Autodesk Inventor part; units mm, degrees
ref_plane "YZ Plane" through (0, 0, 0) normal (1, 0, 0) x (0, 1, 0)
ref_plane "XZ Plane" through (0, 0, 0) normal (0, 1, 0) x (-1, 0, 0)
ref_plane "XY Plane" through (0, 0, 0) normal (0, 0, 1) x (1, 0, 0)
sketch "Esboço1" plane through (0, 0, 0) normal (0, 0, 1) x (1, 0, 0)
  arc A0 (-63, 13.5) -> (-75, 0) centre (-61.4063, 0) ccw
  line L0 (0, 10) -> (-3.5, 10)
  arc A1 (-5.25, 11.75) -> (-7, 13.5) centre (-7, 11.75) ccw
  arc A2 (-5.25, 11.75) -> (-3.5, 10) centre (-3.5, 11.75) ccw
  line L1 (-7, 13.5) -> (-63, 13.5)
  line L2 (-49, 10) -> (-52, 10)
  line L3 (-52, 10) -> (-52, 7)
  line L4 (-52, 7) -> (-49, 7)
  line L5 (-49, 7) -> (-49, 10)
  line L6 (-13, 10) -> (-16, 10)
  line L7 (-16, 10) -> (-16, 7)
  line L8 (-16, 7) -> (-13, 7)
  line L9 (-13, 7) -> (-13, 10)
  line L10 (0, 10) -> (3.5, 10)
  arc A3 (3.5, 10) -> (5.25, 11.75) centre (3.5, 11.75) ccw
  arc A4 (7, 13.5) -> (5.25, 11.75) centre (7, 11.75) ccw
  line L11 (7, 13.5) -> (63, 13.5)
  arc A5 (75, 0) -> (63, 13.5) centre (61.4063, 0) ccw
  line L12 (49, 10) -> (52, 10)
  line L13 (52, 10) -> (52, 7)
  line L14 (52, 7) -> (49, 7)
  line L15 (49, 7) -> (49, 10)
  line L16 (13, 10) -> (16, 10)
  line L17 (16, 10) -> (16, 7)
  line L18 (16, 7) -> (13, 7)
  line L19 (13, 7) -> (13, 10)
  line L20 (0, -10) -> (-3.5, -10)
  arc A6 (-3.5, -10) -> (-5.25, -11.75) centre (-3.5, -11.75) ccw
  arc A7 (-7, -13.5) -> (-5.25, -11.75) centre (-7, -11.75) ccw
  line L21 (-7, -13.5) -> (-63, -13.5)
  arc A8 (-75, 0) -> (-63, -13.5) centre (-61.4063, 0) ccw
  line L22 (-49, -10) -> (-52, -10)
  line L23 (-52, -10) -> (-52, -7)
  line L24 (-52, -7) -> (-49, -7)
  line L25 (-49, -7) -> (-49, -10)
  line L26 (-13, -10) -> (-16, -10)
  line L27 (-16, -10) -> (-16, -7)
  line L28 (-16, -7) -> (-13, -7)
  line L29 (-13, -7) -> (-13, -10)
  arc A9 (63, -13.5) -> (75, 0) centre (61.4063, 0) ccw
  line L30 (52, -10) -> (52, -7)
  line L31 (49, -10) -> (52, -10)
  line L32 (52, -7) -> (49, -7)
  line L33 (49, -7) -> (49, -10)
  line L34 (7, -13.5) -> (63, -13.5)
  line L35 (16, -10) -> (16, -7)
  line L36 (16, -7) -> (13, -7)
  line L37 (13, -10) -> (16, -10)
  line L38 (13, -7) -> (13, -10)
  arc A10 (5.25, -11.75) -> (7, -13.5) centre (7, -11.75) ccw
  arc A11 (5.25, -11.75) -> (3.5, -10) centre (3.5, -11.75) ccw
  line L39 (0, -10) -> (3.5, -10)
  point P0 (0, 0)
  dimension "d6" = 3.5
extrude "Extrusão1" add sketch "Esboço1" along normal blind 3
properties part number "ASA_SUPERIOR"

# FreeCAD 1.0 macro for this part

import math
import FreeCAD as App
import Part
import Sketcher
from FreeCAD import Vector


def add_polygon(sketch, points):
    """Adds a closed chain of lines whose ends are joined by coincident constraints."""
    first, n = sketch.GeometryCount, len(points)
    for a, b in zip(points, points[1:] + points[:1]):
        sketch.addGeometry(Part.LineSegment(App.Vector(*a, 0), App.Vector(*b, 0)), False)
    for i in range(n):
        sketch.addConstraint(Sketcher.Constraint("Coincident", first + i, 2, first + (i + 1) % n, 1))

doc = App.newDocument("Part")
body = doc.addObject("PartDesign::Body", "Body")

# Sketch on XY plane
sketch1 = body.newObject("Sketcher::SketchObject", "Sketch")
sketch1.AttachmentSupport = (doc.getObject("XY_Plane"), [""])
sketch1.MapMode = "FlatFace"
sketch1.addGeometry(Part.LineSegment(Vector(-7, 13.5, 0), Vector(-63, 13.5, 0)), False)  # 0
sketch1.addGeometry(Part.ArcOfCircle(Part.Circle(Vector(-61.4, 0, 0), Vector(0, 0, 1), 13.6), math.radians(97), math.radians(180)), False)  # 1
sketch1.addGeometry(Part.ArcOfCircle(Part.Circle(Vector(-61.4, 0, 0), Vector(0, 0, 1), 13.6), math.radians(180), math.radians(263)), False)  # 2
sketch1.addGeometry(Part.LineSegment(Vector(-63, -13.5, 0), Vector(-7, -13.5, 0)), False)  # 3
sketch1.addGeometry(Part.ArcOfCircle(Part.Circle(Vector(-7, -11.8, 0), Vector(0, 0, 1), 1.8), math.radians(-90), math.radians(0)), False)  # 4
sketch1.addGeometry(Part.ArcOfCircle(Part.Circle(Vector(-3.5, -11.8, 0), Vector(0, 0, 1), 1.8), math.radians(90), math.radians(180)), False)  # 5
sketch1.addGeometry(Part.LineSegment(Vector(-3.5, -10, 0), Vector(3.5, -10, 0)), False)  # 6
sketch1.addGeometry(Part.ArcOfCircle(Part.Circle(Vector(3.5, -11.8, 0), Vector(0, 0, 1), 1.8), math.radians(0), math.radians(90)), False)  # 7
sketch1.addGeometry(Part.ArcOfCircle(Part.Circle(Vector(7, -11.8, 0), Vector(0, 0, 1), 1.8), math.radians(180), math.radians(270)), False)  # 8
sketch1.addGeometry(Part.LineSegment(Vector(7, -13.5, 0), Vector(63, -13.5, 0)), False)  # 9
sketch1.addGeometry(Part.ArcOfCircle(Part.Circle(Vector(61.4, 0, 0), Vector(0, 0, 1), 13.6), math.radians(-83), math.radians(0)), False)  # 10
sketch1.addGeometry(Part.ArcOfCircle(Part.Circle(Vector(61.4, 0, 0), Vector(0, 0, 1), 13.6), math.radians(0), math.radians(83)), False)  # 11
sketch1.addGeometry(Part.LineSegment(Vector(63, 13.5, 0), Vector(7, 13.5, 0)), False)  # 12
sketch1.addGeometry(Part.ArcOfCircle(Part.Circle(Vector(7, 11.8, 0), Vector(0, 0, 1), 1.8), math.radians(90), math.radians(180)), False)  # 13
sketch1.addGeometry(Part.ArcOfCircle(Part.Circle(Vector(3.5, 11.8, 0), Vector(0, 0, 1), 1.8), math.radians(-90), math.radians(0)), False)  # 14
sketch1.addGeometry(Part.LineSegment(Vector(3.5, 10, 0), Vector(-3.5, 10, 0)), False)  # 15
sketch1.addGeometry(Part.ArcOfCircle(Part.Circle(Vector(-3.5, 11.8, 0), Vector(0, 0, 1), 1.8), math.radians(180), math.radians(270)), False)  # 16
sketch1.addGeometry(Part.ArcOfCircle(Part.Circle(Vector(-7, 11.8, 0), Vector(0, 0, 1), 1.8), math.radians(0), math.radians(90)), False)  # 17
add_polygon(sketch1, [(-49, -7), (-49, -10), (-52, -10), (-52, -7)])  # lines 18-21
add_polygon(sketch1, [(-13, -7), (-13, -10), (-16, -10), (-16, -7)])  # lines 22-25
add_polygon(sketch1, [(16, -7), (16, -10), (13, -10), (13, -7)])  # lines 26-29
add_polygon(sketch1, [(52, -7), (52, -10), (49, -10), (49, -7)])  # lines 30-33
add_polygon(sketch1, [(-52, 10), (-49, 10), (-49, 7), (-52, 7)])  # lines 34-37
add_polygon(sketch1, [(-16, 10), (-13, 10), (-13, 7), (-16, 7)])  # lines 38-41
add_polygon(sketch1, [(13, 7), (13, 10), (16, 10), (16, 7)])  # lines 42-45
add_polygon(sketch1, [(49, 7), (49, 10), (52, 10), (52, 7)])  # lines 46-49
sketch1.addConstraint([
    Sketcher.Constraint("Coincident", 0, 2, 1, 1),
    Sketcher.Constraint("Tangent", 1, 2, 2, 1),
    Sketcher.Constraint("Coincident", 2, 2, 3, 1),
    Sketcher.Constraint("Tangent", 3, 2, 4, 1),
    Sketcher.Constraint("Tangent", 4, 2, 5, 2),
    Sketcher.Constraint("Tangent", 5, 1, 6, 1),
    Sketcher.Constraint("Tangent", 6, 2, 7, 2),
    Sketcher.Constraint("Tangent", 7, 1, 8, 1),
    Sketcher.Constraint("Tangent", 8, 2, 9, 1),
    Sketcher.Constraint("Coincident", 9, 2, 10, 1),
    Sketcher.Constraint("Tangent", 10, 2, 11, 1),
    Sketcher.Constraint("Coincident", 11, 2, 12, 1),
    Sketcher.Constraint("Tangent", 12, 2, 13, 1),
    Sketcher.Constraint("Tangent", 13, 2, 14, 2),
    Sketcher.Constraint("Tangent", 14, 1, 15, 1),
    Sketcher.Constraint("Tangent", 15, 2, 16, 2),
    Sketcher.Constraint("Tangent", 16, 1, 17, 1),
    Sketcher.Constraint("Tangent", 17, 2, 0, 1),
    Sketcher.Constraint("Horizontal", 0),
    Sketcher.Constraint("Horizontal", 3),
    Sketcher.Constraint("Horizontal", 6),
    Sketcher.Constraint("Horizontal", 9),
    Sketcher.Constraint("Horizontal", 12),
    Sketcher.Constraint("Horizontal", 15),
    Sketcher.Constraint("Vertical", 18),
    Sketcher.Constraint("Horizontal", 19),
    Sketcher.Constraint("Vertical", 20),
    Sketcher.Constraint("Horizontal", 21),
    Sketcher.Constraint("Vertical", 22),
    Sketcher.Constraint("Horizontal", 23),
    Sketcher.Constraint("Vertical", 24),
    Sketcher.Constraint("Horizontal", 25),
    Sketcher.Constraint("Vertical", 26),
    Sketcher.Constraint("Horizontal", 27),
    Sketcher.Constraint("Vertical", 28),
    Sketcher.Constraint("Horizontal", 29),
    Sketcher.Constraint("Vertical", 30),
    Sketcher.Constraint("Horizontal", 31),
    Sketcher.Constraint("Vertical", 32),
    Sketcher.Constraint("Horizontal", 33),
    Sketcher.Constraint("Horizontal", 34),
    Sketcher.Constraint("Vertical", 35),
    Sketcher.Constraint("Horizontal", 36),
    Sketcher.Constraint("Vertical", 37),
    Sketcher.Constraint("Horizontal", 38),
    Sketcher.Constraint("Vertical", 39),
    Sketcher.Constraint("Horizontal", 40),
    Sketcher.Constraint("Vertical", 41),
    Sketcher.Constraint("Vertical", 42),
    Sketcher.Constraint("Horizontal", 43),
    Sketcher.Constraint("Vertical", 44),
    Sketcher.Constraint("Horizontal", 45),
    Sketcher.Constraint("Vertical", 46),
    Sketcher.Constraint("Horizontal", 47),
    Sketcher.Constraint("Vertical", 48),
    Sketcher.Constraint("Horizontal", 49),
    Sketcher.Constraint("Equal", 1, 2),
    Sketcher.Constraint("Equal", 4, 5),
    Sketcher.Constraint("Equal", 5, 7),
    Sketcher.Constraint("Equal", 7, 8),
    Sketcher.Constraint("Equal", 2, 10),
    Sketcher.Constraint("Equal", 10, 11),
    Sketcher.Constraint("Equal", 8, 13),
    Sketcher.Constraint("Equal", 13, 14),
    Sketcher.Constraint("Equal", 14, 16),
    Sketcher.Constraint("Equal", 16, 17),
    Sketcher.Constraint("Symmetric", 1, 3, 10, 3, -1, 1),
    Sketcher.Constraint("Symmetric", 4, 3, 13, 3, -1, 1),
    Sketcher.Constraint("Symmetric", 7, 3, 16, 3, -1, 1),
    Sketcher.Constraint("Symmetric", 31, 2, 34, 2, -1, 1),
    Sketcher.Constraint("Symmetric", 33, 2, 36, 2, -1, 1),
    Sketcher.Constraint("Symmetric", 27, 2, 38, 2, -1, 1),
    Sketcher.Constraint("Symmetric", 29, 2, 40, 2, -1, 1),
    Sketcher.Constraint("Symmetric", 22, 2, 42, 2, -1, 1),
    Sketcher.Constraint("Symmetric", 24, 2, 44, 2, -1, 1),
    Sketcher.Constraint("Symmetric", 18, 2, 46, 2, -1, 1),
    Sketcher.Constraint("Symmetric", 20, 2, 48, 2, -1, 1),
    Sketcher.Constraint("Symmetric", 4, 3, 8, 3, -2),
    Sketcher.Constraint("Symmetric", 0, 2, 11, 2, -2),
    Sketcher.Constraint("Symmetric", 23, 2, 26, 2, -2),
    Sketcher.Constraint("Symmetric", 25, 2, 28, 2, -2),
    Sketcher.Constraint("Symmetric", 19, 2, 30, 2, -2),
    Sketcher.Constraint("Symmetric", 21, 2, 32, 2, -2),
    Sketcher.Constraint("PointOnObject", 1, 2, -1),
    Sketcher.Constraint("PointOnObject", 10, 2, -1),
    Sketcher.Constraint("Horizontal", 4, 3, 5, 3),
    Sketcher.Constraint("Horizontal", 6, 2, 18, 2),
    Sketcher.Constraint("Horizontal", 19, 2, 22, 2),
    Sketcher.Constraint("Horizontal", 21, 2, 24, 2),
    Sketcher.Constraint("Equal", 21, 23),
    Sketcher.Constraint("Equal", 49, 18),
    Sketcher.Constraint("Radius", 4, 1.75),
    Sketcher.Constraint("DistanceX", 5, 3, -1, 1, 3.5),
    Sketcher.Constraint("DistanceX", 0, 2, 0, 1, 56.0),
    Sketcher.Constraint("DistanceX", 19, 2, 19, 1, 3.0),
    Sketcher.Constraint("DistanceX", 1, 2, -1, 1, 75.0),
    Sketcher.Constraint("DistanceY", 5, 1, -1, 1, 10.0),
    Sketcher.Constraint("DistanceX", 18, 2, -1, 1, 49.0),
    Sketcher.Constraint("DistanceX", 22, 2, -1, 1, 13.0),
])
pad1 = body.newObject("PartDesign::Pad", "Pad")
pad1.Profile = sketch1
pad1.Length = 3

doc.recompute()
